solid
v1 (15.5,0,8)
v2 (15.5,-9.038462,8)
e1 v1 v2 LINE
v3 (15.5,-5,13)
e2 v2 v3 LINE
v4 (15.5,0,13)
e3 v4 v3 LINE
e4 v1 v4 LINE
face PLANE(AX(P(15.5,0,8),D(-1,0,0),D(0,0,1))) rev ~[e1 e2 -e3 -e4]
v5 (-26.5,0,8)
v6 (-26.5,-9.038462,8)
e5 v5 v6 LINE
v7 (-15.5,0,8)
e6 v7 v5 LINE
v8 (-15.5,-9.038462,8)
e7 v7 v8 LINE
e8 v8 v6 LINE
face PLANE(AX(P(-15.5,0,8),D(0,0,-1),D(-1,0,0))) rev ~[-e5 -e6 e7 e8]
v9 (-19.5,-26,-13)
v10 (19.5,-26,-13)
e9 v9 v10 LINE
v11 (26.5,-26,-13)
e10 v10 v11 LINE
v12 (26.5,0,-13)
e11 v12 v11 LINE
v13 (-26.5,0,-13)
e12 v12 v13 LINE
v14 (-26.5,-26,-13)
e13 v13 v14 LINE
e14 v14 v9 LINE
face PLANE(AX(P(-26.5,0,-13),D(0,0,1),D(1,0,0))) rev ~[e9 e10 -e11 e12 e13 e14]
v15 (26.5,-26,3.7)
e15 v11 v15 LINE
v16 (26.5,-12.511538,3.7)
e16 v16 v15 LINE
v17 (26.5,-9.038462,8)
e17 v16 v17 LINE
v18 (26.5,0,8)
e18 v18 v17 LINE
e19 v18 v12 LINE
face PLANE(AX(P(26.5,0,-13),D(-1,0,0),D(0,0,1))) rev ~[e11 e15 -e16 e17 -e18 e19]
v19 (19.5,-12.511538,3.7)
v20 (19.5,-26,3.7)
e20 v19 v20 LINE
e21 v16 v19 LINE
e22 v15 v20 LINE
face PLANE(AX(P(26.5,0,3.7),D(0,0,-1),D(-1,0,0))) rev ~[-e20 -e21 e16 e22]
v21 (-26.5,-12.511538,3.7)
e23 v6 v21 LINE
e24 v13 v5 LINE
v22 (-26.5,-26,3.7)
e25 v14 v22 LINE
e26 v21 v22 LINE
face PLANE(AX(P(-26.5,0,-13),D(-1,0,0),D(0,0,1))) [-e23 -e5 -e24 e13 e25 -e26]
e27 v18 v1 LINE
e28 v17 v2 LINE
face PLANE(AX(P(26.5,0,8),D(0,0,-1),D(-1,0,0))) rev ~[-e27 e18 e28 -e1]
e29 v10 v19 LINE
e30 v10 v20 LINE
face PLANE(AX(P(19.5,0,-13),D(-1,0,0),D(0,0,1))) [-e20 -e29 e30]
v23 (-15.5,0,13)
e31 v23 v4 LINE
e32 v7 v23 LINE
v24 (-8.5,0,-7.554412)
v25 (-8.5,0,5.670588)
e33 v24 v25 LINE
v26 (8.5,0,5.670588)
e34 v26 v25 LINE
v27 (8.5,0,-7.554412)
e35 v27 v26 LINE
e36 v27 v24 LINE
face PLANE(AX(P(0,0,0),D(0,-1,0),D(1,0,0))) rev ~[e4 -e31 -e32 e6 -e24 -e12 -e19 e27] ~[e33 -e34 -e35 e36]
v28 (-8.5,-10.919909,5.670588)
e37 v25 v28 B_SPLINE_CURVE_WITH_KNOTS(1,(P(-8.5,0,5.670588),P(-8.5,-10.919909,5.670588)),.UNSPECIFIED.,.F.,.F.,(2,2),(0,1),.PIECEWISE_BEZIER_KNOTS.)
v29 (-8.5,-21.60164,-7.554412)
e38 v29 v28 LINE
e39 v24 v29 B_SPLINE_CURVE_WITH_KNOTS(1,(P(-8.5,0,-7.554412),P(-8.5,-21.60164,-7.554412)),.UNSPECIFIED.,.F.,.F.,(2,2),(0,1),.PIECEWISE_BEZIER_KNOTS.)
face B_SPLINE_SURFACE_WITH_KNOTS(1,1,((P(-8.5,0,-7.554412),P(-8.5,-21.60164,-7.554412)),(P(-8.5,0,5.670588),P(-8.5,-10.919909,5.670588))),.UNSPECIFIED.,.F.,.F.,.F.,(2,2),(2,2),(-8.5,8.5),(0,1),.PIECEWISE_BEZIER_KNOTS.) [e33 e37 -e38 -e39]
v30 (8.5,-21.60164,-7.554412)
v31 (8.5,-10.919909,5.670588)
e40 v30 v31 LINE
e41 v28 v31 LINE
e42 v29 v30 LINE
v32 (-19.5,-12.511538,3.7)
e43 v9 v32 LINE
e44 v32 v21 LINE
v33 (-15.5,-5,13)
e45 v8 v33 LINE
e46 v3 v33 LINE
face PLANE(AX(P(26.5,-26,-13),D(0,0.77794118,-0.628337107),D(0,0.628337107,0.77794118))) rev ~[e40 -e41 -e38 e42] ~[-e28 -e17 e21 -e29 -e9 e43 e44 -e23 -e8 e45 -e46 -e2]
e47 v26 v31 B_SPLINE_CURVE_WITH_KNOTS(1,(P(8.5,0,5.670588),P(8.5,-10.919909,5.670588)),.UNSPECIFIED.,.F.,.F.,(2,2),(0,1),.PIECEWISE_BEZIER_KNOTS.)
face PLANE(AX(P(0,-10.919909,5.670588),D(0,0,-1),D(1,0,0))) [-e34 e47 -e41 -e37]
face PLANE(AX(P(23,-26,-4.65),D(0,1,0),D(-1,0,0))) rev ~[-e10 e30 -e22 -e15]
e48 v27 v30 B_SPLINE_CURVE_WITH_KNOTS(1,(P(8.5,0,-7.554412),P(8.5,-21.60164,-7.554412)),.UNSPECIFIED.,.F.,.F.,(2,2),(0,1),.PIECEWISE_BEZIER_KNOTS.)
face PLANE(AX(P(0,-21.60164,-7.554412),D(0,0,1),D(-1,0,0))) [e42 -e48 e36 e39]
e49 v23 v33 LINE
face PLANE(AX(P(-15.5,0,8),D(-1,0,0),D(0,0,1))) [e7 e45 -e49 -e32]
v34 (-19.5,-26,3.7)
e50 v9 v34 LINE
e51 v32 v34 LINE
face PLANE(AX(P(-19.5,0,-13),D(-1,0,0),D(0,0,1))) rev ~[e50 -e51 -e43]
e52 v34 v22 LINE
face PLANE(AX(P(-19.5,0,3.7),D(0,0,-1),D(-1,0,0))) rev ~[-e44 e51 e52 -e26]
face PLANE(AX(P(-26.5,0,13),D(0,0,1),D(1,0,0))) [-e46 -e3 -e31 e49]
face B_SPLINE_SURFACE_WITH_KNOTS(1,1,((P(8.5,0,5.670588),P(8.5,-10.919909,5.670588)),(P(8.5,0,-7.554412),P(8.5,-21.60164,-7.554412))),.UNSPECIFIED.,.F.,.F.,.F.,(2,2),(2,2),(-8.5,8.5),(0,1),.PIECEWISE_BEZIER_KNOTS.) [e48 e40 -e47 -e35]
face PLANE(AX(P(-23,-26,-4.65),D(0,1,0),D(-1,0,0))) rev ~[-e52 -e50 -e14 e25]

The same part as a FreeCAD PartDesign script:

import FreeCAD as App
import Part
import Sketcher

V = App.Vector
Q = App.Units.Quantity

doc = App.newDocument("Part")
body = doc.addObject("PartDesign::Body", "Body")

# Sketch on XZ plane
sketch1 = body.newObject("Sketcher::SketchObject", "Sketch")
sketch1.AttachmentSupport = (doc.getObject("XZ_Plane"), [""])
sketch1.MapMode = "FlatFace"
sketch1.addGeometry(Part.LineSegment(V(-26, 13, 0), V(-26, -13, 0)), False)
sketch1.addGeometry(Part.LineSegment(V(-26, -13, 0), V(26, -13, 0)), False)
sketch1.addGeometry(Part.LineSegment(V(26, -13, 0), V(26, 13, 0)), False)
sketch1.addGeometry(Part.LineSegment(V(26, 13, 0), V(-26, 13, 0)), False)
sketch1.addConstraint(Sketcher.Constraint("Coincident", 0, 2, 1, 1))
sketch1.addConstraint(Sketcher.Constraint("Coincident", 1, 2, 2, 1))
sketch1.addConstraint(Sketcher.Constraint("Coincident", 2, 2, 3, 1))
sketch1.addConstraint(Sketcher.Constraint("Coincident", 3, 2, 0, 1))
sketch1.addConstraint(Sketcher.Constraint("Vertical", 0))
sketch1.addConstraint(Sketcher.Constraint("Horizontal", 1))
sketch1.addConstraint(Sketcher.Constraint("Vertical", 2))
sketch1.addConstraint(Sketcher.Constraint("Horizontal", 3))
sketch1.addConstraint(Sketcher.Constraint("Symmetric", 0, 2, 2, 2, -1, 1))
sketch1.addConstraint(Sketcher.Constraint("DistanceX", 1, 1, 1, 2, Q("53 mm")))
sketch1.addConstraint(Sketcher.Constraint("DistanceY", 0, 2, 0, 1, Q("26 mm")))
pad1 = body.newObject("PartDesign::Pad", "Pad")
pad1.Profile = sketch1
pad1.Length = 26

# Sketch on YZ plane
sketch2 = body.newObject("Sketcher::SketchObject", "Sketch001")
sketch2.AttachmentSupport = (doc.getObject("YZ_Plane"), [""])
sketch2.MapMode = "FlatFace"
sketch2.AttachmentOffset = App.Placement(V(0, 0, 26.5), App.Rotation())
sketch2.addGeometry(Part.LineSegment(V(-26, -13, 0), V(-5, 13, 0)), False)
sketch2.addGeometry(Part.LineSegment(V(-5, 13, 0), V(-26, 13, 0)), False)
sketch2.addGeometry(Part.LineSegment(V(-26, 13, 0), V(-26, -13, 0)), False)
sketch2.addConstraint(Sketcher.Constraint("Coincident", 0, 2, 1, 1))
sketch2.addConstraint(Sketcher.Constraint("Coincident", 1, 2, 2, 1))
sketch2.addConstraint(Sketcher.Constraint("Coincident", 2, 2, 0, 1))
sketch2.addConstraint(Sketcher.Constraint("Horizontal", 1))
sketch2.addConstraint(Sketcher.Constraint("Vertical", 2))
sketch2.addConstraint(Sketcher.Constraint("DistanceX", 1, 2, 1, 1, Q("21 mm")))
sketch2.addConstraint(Sketcher.Constraint("DistanceY", 2, 2, 2, 1, Q("26 mm")))
sketch2.addConstraint(Sketcher.Constraint("DistanceX", 0, 2, -1, 1, Q("5 mm")))
sketch2.addConstraint(Sketcher.Constraint("DistanceY", -1, 1, 0, 2, Q("13 mm")))
pocket1 = body.newObject("PartDesign::Pocket", "Pocket")
pocket1.Profile = sketch2
pocket1.Length = 202.1

# Sketch on XZ plane
sketch3 = body.newObject("Sketcher::SketchObject", "Sketch002")
sketch3.AttachmentSupport = (doc.getObject("XZ_Plane"), [""])
sketch3.MapMode = "FlatFace"
sketch3.addGeometry(Part.LineSegment(V(26, 4, 0), V(26, -13, 0)), False)
sketch3.addGeometry(Part.LineSegment(V(26, -13, 0), V(20, -13, 0)), False)
sketch3.addGeometry(Part.LineSegment(V(20, -13, 0), V(20, 4, 0)), False)
sketch3.addGeometry(Part.LineSegment(V(20, 4, 0), V(26, 4, 0)), False)
sketch3.addGeometry(Part.LineSegment(V(-20, 4, 0), V(-20, -13, 0)), False)
sketch3.addGeometry(Part.LineSegment(V(-20, -13, 0), V(-26, -13, 0)), False)
sketch3.addGeometry(Part.LineSegment(V(-26, -13, 0), V(-26, 4, 0)), False)
sketch3.addGeometry(Part.LineSegment(V(-26, 4, 0), V(-20, 4, 0)), False)
sketch3.addConstraint(Sketcher.Constraint("Coincident", 0, 2, 1, 1))
sketch3.addConstraint(Sketcher.Constraint("Coincident", 1, 2, 2, 1))
sketch3.addConstraint(Sketcher.Constraint("Coincident", 2, 2, 3, 1))
sketch3.addConstraint(Sketcher.Constraint("Coincident", 3, 2, 0, 1))
sketch3.addConstraint(Sketcher.Constraint("Coincident", 4, 2, 5, 1))
sketch3.addConstraint(Sketcher.Constraint("Coincident", 5, 2, 6, 1))
sketch3.addConstraint(Sketcher.Constraint("Coincident", 6, 2, 7, 1))
sketch3.addConstraint(Sketcher.Constraint("Coincident", 7, 2, 4, 1))
sketch3.addConstraint(Sketcher.Constraint("Vertical", 0))
sketch3.addConstraint(Sketcher.Constraint("Horizontal", 1))
sketch3.addConstraint(Sketcher.Constraint("Vertical", 2))
sketch3.addConstraint(Sketcher.Constraint("Horizontal", 3))
sketch3.addConstraint(Sketcher.Constraint("Vertical", 4))
sketch3.addConstraint(Sketcher.Constraint("Horizontal", 5))
sketch3.addConstraint(Sketcher.Constraint("Vertical", 6))
sketch3.addConstraint(Sketcher.Constraint("Horizontal", 7))
sketch3.addConstraint(Sketcher.Constraint("Symmetric", 1, 2, 4, 2, -2))
sketch3.addConstraint(Sketcher.Constraint("Symmetric", 3, 2, 6, 2, -2))
sketch3.addConstraint(Sketcher.Constraint("DistanceX", 1, 2, 1, 1, Q("7 mm")))
sketch3.addConstraint(Sketcher.Constraint("DistanceY", 0, 2, 0, 1, Q("16.7 mm")))
sketch3.addConstraint(Sketcher.Constraint("DistanceY", 0, 2, -1, 1, Q("13 mm")))
sketch3.addConstraint(Sketcher.Constraint("DistanceX", 4, 2, 1, 2, Q("39 mm")))
pad2 = body.newObject("PartDesign::Pad", "Pad001")
pad2.Profile = sketch3
pad2.Length = 26

# Sketch on XZ plane
sketch4 = body.newObject("Sketcher::SketchObject", "Sketch003")
sketch4.AttachmentSupport = (doc.getObject("XZ_Plane"), [""])
sketch4.MapMode = "FlatFace"
sketch4.addGeometry(Part.LineSegment(V(26, 13, 0), V(26, 8, 0)), False)
sketch4.addGeometry(Part.LineSegment(V(26, 8, 0), V(16, 8, 0)), False)
sketch4.addGeometry(Part.LineSegment(V(16, 8, 0), V(16, 13, 0)), False)
sketch4.addGeometry(Part.LineSegment(V(16, 13, 0), V(26, 13, 0)), False)
sketch4.addGeometry(Part.LineSegment(V(-16, 13, 0), V(-16, 8, 0)), False)
sketch4.addGeometry(Part.LineSegment(V(-16, 8, 0), V(-26, 8, 0)), False)
sketch4.addGeometry(Part.LineSegment(V(-26, 8, 0), V(-26, 13, 0)), False)
sketch4.addGeometry(Part.LineSegment(V(-26, 13, 0), V(-16, 13, 0)), False)
sketch4.addConstraint(Sketcher.Constraint("Coincident", 0, 2, 1, 1))
sketch4.addConstraint(Sketcher.Constraint("Coincident", 1, 2, 2, 1))
sketch4.addConstraint(Sketcher.Constraint("Coincident", 2, 2, 3, 1))
sketch4.addConstraint(Sketcher.Constraint("Coincident", 3, 2, 0, 1))
sketch4.addConstraint(Sketcher.Constraint("Coincident", 4, 2, 5, 1))
sketch4.addConstraint(Sketcher.Constraint("Coincident", 5, 2, 6, 1))
sketch4.addConstraint(Sketcher.Constraint("Coincident", 6, 2, 7, 1))
sketch4.addConstraint(Sketcher.Constraint("Coincident", 7, 2, 4, 1))
sketch4.addConstraint(Sketcher.Constraint("Vertical", 0))
sketch4.addConstraint(Sketcher.Constraint("Horizontal", 1))
sketch4.addConstraint(Sketcher.Constraint("Vertical", 2))
sketch4.addConstraint(Sketcher.Constraint("Horizontal", 3))
sketch4.addConstraint(Sketcher.Constraint("Vertical", 4))
sketch4.addConstraint(Sketcher.Constraint("Horizontal", 5))
sketch4.addConstraint(Sketcher.Constraint("Vertical", 6))
sketch4.addConstraint(Sketcher.Constraint("Horizontal", 7))
sketch4.addConstraint(Sketcher.Constraint("Symmetric", 1, 2, 4, 2, -2))
sketch4.addConstraint(Sketcher.Constraint("Symmetric", 3, 2, 6, 2, -2))
sketch4.addConstraint(Sketcher.Constraint("DistanceX", 1, 2, 1, 1, Q("11 mm")))
sketch4.addConstraint(Sketcher.Constraint("DistanceY", 0, 2, 0, 1, Q("5 mm")))
sketch4.addConstraint(Sketcher.Constraint("DistanceY", -1, 1, 0, 2, Q("8 mm")))
sketch4.addConstraint(Sketcher.Constraint("DistanceX", 4, 2, 1, 2, Q("31 mm")))
pocket2 = body.newObject("PartDesign::Pocket", "Pocket001")
pocket2.Profile = sketch4
pocket2.Length = 25
pocket2.Reversed = True

# Sketch on XZ plane
sketch5 = body.newObject("Sketcher::SketchObject", "Sketch004")
sketch5.AttachmentSupport = (doc.getObject("XZ_Plane"), [""])
sketch5.MapMode = "FlatFace"
sketch5.addGeometry(Part.LineSegment(V(8, 6, 0), V(8, -8, 0)), False)
sketch5.addGeometry(Part.LineSegment(V(8, -8, 0), V(-8, -8, 0)), False)
sketch5.addGeometry(Part.LineSegment(V(-8, -8, 0), V(-8, 6, 0)), False)
sketch5.addGeometry(Part.LineSegment(V(-8, 6, 0), V(8, 6, 0)), False)
sketch5.addConstraint(Sketcher.Constraint("Coincident", 0, 2, 1, 1))
sketch5.addConstraint(Sketcher.Constraint("Coincident", 1, 2, 2, 1))
sketch5.addConstraint(Sketcher.Constraint("Coincident", 2, 2, 3, 1))
sketch5.addConstraint(Sketcher.Constraint("Coincident", 3, 2, 0, 1))
sketch5.addConstraint(Sketcher.Constraint("Vertical", 0))
sketch5.addConstraint(Sketcher.Constraint("Horizontal", 1))
sketch5.addConstraint(Sketcher.Constraint("Vertical", 2))
sketch5.addConstraint(Sketcher.Constraint("Horizontal", 3))
sketch5.addConstraint(Sketcher.Constraint("DistanceX", 1, 2, 1, 1, Q("17 mm")))
sketch5.addConstraint(Sketcher.Constraint("DistanceX", -1, 1, 0, 2, Q("8.5 mm")))
sketch5.addConstraint(Sketcher.Constraint("DistanceY", 0, 2, 0, 1, Q("13.225 mm")))
sketch5.addConstraint(Sketcher.Constraint("DistanceY", 0, 2, -1, 1, Q("7.554412 mm")))

# Sketch on an angled plane
sketch6 = body.newObject("Sketcher::SketchObject", "Sketch005")
sketch6.Placement = App.Placement(V(0, -9.380483, 7.576544), App.Rotation(V(1, 0, 0), V(0, 0.628337107, 0.77794118), V(0, -0.77794118, 0.628337107), "ZXY"))
sketch6.addGeometry(Part.LineSegment(V(-8, -2, 0), V(-8, -19, 0)), False)
sketch6.addGeometry(Part.LineSegment(V(-8, -19, 0), V(8, -19, 0)), False)
sketch6.addGeometry(Part.LineSegment(V(8, -19, 0), V(8, -2, 0)), False)
sketch6.addGeometry(Part.LineSegment(V(8, -2, 0), V(-8, -2, 0)), False)
sketch6.addConstraint(Sketcher.Constraint("Coincident", 0, 2, 1, 1))
sketch6.addConstraint(Sketcher.Constraint("Coincident", 1, 2, 2, 1))
sketch6.addConstraint(Sketcher.Constraint("Coincident", 2, 2, 3, 1))
sketch6.addConstraint(Sketcher.Constraint("Coincident", 3, 2, 0, 1))
sketch6.addConstraint(Sketcher.Constraint("Vertical", 0))
sketch6.addConstraint(Sketcher.Constraint("Horizontal", 1))
sketch6.addConstraint(Sketcher.Constraint("Vertical", 2))
sketch6.addConstraint(Sketcher.Constraint("Horizontal", 3))
sketch6.addConstraint(Sketcher.Constraint("Equal", 3, 0))
sketch6.addConstraint(Sketcher.Constraint("DistanceX", 1, 1, 1, 2, Q("17 mm")))
sketch6.addConstraint(Sketcher.Constraint("DistanceX", 0, 2, -1, 1, Q("8.5 mm")))
sketch6.addConstraint(Sketcher.Constraint("DistanceY", 0, 2, -1, 1, Q("19.45 mm")))

subtractiveloft = body.newObject("PartDesign::SubtractiveLoft", "SubtractiveLoft")
subtractiveloft.Profile = sketch5
subtractiveloft.Sections = [sketch6]

doc.recompute()
